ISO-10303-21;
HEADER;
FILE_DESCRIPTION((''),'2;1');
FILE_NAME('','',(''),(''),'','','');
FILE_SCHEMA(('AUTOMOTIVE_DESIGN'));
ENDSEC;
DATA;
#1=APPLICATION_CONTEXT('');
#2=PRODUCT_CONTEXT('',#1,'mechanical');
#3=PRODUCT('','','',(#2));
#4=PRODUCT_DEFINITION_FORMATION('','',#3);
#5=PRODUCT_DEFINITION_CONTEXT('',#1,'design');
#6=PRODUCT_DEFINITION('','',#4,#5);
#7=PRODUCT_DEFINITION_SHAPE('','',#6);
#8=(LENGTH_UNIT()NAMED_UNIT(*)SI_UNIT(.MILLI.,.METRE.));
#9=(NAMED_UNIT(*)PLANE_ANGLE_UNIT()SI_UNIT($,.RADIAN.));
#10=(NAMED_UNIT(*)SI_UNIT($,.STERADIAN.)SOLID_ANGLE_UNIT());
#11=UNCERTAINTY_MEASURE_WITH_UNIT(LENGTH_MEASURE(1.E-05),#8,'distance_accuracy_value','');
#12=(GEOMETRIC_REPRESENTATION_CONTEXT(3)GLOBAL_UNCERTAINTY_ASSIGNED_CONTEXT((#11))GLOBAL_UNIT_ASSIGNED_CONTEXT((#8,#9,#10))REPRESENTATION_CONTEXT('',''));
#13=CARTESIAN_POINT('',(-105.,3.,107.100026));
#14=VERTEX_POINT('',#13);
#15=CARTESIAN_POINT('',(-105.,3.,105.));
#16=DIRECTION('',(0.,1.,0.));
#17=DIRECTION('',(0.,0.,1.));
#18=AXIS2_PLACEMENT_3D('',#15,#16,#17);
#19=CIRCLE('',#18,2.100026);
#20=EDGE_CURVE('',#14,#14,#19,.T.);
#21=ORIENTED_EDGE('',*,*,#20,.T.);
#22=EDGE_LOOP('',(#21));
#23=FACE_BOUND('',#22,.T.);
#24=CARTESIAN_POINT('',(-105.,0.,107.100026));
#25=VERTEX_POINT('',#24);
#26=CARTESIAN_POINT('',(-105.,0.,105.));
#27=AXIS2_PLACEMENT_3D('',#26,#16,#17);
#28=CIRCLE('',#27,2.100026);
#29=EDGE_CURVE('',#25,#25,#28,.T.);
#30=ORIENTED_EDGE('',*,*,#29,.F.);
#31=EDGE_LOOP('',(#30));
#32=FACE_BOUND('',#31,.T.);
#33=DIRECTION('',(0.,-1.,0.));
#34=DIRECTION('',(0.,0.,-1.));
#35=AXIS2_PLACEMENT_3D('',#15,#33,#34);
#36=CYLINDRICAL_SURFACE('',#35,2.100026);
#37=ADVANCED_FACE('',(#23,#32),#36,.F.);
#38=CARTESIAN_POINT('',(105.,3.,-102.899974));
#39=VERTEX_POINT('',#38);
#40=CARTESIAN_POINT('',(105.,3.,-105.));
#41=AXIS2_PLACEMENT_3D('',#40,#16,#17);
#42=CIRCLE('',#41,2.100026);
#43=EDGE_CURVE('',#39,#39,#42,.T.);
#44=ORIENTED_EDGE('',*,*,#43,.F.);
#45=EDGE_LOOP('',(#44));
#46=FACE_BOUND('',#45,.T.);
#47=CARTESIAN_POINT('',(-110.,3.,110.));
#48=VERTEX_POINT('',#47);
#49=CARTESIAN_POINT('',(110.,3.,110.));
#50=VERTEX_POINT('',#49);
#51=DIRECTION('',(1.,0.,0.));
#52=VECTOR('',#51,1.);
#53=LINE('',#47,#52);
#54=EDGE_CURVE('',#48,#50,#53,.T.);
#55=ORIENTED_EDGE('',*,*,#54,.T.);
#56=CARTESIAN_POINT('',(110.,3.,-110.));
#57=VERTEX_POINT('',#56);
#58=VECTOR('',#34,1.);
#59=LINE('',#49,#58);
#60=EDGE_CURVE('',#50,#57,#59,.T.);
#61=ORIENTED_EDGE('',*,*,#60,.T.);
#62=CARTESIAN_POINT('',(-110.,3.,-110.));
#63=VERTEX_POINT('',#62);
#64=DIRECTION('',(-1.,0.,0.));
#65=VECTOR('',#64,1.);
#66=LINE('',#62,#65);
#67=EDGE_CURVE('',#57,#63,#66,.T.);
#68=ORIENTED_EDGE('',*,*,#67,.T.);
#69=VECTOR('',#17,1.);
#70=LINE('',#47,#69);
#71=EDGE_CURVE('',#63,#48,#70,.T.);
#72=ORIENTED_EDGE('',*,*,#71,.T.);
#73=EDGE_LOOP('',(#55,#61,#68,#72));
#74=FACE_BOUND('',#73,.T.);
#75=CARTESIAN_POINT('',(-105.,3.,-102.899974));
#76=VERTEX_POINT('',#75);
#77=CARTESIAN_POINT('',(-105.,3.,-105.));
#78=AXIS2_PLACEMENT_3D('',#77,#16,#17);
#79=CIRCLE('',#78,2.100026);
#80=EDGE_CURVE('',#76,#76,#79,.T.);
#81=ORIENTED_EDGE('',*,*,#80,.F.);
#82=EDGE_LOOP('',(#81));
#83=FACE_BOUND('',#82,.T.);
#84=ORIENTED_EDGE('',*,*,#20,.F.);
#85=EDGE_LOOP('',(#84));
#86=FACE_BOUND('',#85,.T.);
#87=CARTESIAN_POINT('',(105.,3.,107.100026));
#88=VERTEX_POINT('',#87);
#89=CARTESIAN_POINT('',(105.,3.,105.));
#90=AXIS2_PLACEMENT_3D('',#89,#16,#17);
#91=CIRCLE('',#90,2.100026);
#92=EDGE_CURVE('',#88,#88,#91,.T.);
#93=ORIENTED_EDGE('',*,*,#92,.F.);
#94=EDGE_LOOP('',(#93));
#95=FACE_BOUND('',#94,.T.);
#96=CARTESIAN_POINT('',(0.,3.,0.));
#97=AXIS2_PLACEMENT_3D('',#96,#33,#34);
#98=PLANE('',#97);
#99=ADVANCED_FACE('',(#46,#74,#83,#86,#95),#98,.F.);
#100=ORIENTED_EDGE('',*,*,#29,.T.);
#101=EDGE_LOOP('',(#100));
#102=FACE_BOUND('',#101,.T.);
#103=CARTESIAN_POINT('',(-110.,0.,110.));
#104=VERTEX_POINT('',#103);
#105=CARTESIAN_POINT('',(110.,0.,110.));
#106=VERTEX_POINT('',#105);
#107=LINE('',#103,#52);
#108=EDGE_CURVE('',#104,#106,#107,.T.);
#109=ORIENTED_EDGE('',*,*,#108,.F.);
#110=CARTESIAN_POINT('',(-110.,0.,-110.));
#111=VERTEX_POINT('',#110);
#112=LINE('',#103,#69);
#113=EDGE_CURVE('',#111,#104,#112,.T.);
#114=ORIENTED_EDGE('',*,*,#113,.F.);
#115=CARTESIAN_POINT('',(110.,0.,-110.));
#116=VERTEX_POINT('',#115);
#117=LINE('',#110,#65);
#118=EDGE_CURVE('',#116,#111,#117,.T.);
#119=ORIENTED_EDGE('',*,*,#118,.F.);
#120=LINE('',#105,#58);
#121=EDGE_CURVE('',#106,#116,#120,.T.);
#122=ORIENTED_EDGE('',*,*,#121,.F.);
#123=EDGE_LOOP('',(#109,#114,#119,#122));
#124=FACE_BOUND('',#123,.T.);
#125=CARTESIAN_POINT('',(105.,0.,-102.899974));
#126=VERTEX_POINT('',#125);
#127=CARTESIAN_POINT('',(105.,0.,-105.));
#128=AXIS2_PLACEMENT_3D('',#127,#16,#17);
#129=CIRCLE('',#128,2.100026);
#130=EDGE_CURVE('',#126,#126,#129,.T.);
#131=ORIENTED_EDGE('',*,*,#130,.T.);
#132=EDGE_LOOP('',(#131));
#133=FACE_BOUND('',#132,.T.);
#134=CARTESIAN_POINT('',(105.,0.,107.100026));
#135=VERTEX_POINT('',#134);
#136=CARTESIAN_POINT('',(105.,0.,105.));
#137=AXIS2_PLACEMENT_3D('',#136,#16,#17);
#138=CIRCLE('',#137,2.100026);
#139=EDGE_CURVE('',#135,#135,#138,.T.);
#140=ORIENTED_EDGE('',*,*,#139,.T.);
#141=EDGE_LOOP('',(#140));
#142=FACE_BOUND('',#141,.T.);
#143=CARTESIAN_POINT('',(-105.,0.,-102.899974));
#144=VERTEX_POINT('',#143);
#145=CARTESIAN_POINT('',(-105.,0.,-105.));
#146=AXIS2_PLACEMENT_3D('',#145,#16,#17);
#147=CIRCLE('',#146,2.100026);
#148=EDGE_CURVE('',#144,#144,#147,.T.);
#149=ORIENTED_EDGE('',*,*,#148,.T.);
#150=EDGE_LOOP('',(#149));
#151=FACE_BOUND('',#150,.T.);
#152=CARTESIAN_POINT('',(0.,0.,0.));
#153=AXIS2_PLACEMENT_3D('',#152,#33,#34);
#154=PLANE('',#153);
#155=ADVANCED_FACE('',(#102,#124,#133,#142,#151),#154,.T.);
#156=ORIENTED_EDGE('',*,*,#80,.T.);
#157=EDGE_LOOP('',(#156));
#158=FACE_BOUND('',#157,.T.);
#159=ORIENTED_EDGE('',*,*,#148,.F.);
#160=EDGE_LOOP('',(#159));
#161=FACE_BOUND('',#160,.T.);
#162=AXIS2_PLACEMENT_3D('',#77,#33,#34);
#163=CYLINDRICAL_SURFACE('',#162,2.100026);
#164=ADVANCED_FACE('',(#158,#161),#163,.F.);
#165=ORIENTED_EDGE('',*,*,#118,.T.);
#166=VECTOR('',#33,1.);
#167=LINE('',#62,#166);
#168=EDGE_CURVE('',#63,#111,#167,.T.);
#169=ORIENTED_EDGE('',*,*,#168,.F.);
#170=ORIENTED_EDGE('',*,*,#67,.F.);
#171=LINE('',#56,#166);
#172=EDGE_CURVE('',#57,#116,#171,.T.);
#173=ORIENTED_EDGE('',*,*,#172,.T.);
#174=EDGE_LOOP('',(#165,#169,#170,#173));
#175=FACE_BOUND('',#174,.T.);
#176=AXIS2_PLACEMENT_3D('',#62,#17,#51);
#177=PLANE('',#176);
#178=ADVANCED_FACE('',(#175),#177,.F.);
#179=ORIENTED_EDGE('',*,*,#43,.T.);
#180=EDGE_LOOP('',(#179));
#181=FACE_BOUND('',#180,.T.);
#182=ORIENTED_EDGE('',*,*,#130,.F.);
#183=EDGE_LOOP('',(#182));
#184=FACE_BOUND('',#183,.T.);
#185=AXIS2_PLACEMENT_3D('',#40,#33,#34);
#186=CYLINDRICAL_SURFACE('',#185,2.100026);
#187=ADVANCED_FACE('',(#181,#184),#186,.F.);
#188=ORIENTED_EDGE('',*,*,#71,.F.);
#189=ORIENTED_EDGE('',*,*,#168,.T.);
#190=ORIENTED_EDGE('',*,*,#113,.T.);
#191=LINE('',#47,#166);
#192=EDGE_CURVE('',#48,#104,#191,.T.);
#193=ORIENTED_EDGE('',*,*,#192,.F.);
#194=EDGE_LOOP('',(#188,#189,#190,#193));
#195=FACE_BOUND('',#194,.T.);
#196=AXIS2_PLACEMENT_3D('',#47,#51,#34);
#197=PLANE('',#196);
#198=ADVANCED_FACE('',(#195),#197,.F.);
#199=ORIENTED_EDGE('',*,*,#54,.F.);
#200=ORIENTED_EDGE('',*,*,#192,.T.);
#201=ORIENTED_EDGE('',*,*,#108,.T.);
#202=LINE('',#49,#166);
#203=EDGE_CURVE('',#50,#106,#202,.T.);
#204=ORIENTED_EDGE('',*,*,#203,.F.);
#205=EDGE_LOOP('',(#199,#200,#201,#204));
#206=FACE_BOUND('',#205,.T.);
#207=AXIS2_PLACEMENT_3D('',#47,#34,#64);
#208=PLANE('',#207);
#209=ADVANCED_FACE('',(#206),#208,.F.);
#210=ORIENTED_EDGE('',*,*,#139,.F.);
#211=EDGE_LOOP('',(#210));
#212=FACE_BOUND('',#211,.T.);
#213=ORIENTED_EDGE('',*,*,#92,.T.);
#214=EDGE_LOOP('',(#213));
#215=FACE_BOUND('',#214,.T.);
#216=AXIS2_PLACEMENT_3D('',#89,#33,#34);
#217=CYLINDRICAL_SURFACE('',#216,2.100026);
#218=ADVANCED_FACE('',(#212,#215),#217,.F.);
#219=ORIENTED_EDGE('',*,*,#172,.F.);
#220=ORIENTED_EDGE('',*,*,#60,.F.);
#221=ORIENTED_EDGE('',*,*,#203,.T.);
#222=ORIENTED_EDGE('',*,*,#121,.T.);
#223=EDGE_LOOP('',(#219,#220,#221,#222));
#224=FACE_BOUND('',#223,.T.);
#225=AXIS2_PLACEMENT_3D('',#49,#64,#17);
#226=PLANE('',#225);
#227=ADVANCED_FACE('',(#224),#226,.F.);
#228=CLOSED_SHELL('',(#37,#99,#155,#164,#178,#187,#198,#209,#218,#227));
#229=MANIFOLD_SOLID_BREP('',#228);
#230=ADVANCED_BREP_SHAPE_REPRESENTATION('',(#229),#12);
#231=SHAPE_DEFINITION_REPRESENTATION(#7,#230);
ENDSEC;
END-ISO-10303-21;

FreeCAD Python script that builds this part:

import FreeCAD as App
import Part
import Sketcher
from FreeCAD import Vector
Q = App.Units.Quantity


def add_polygon(sketch, points):
    """Adds a closed chain of lines whose ends are joined by coincident constraints."""
    first, n = sketch.GeometryCount, len(points)
    for a, b in zip(points, points[1:] + points[:1]):
        sketch.addGeometry(Part.LineSegment(App.Vector(*a, 0), App.Vector(*b, 0)), False)
    for i in range(n):
        sketch.addConstraint(Sketcher.Constraint("Coincident", first + i, 2, first + (i + 1) % n, 1))

doc = App.newDocument("Part")
params = doc.addObject("Spreadsheet::Sheet", "Params")
for row, (alias, value) in enumerate([
    ("sketch1_width", "220 mm"),
    ("pad1_length", "3 mm"),
], start=1):
    params.set(f"A{row}", alias)
    params.set(f"B{row}", "=" + value)
    params.setAlias(f"B{row}", alias)

body = doc.addObject("PartDesign::Body", "Body")

# Sketch on XZ plane
sketch1 = body.newObject("Sketcher::SketchObject", "Sketch")
sketch1.AttachmentSupport = (doc.getObject("XZ_Plane"), [""])
sketch1.MapMode = "FlatFace"
add_polygon(sketch1, [(-110, -110), (-110, 110), (110, 110), (110, -110)])  # lines 0-3
sketch1.addGeometry(Part.Circle(Vector(-105, 105, 0), Vector(0, 0, 1), 2.1), False)  # 4
sketch1.addGeometry(Part.Circle(Vector(105, 105, 0), Vector(0, 0, 1), 2.1), False)  # 5
sketch1.addGeometry(Part.Circle(Vector(-105, -105, 0), Vector(0, 0, 1), 2.1), False)  # 6
sketch1.addGeometry(Part.Circle(Vector(105, -105, 0), Vector(0, 0, 1), 2.1), False)  # 7
sketch1.addConstraint([
    Sketcher.Constraint("Vertical", 0),
    Sketcher.Constraint("Horizontal", 1),
    Sketcher.Constraint("Vertical", 2),
    Sketcher.Constraint("Horizontal", 3),
    Sketcher.Constraint("Equal", 4, 5),
    Sketcher.Constraint("Equal", 5, 6),
    Sketcher.Constraint("Equal", 6, 7),
    Sketcher.Constraint("Symmetric", 5, 3, 6, 3, -1, 1),
    Sketcher.Constraint("Symmetric", 4, 3, 7, 3, -1, 1),
    Sketcher.Constraint("Symmetric", 0, 2, 2, 2, -1, 1),
    Sketcher.Constraint("Symmetric", 4, 3, 5, 3, -2),
    Sketcher.Constraint("Equal", 3, 0),
    Sketcher.Constraint("DistanceX", 1, 1, 1, 2, Q("220 mm")),
    Sketcher.Constraint("DistanceX", 4, 3, -1, 1, Q("105 mm")),
    Sketcher.Constraint("DistanceY", -1, 1, 4, 3, Q("105 mm")),
    Sketcher.Constraint("Diameter", 4, Q("4.200051 mm")),
])
sketch1.setExpression("Constraints[16]", "Params.sketch1_width")
pad1 = body.newObject("PartDesign::Pad", "Pad")
pad1.Profile = sketch1
pad1.setExpression("Length", "Params.pad1_length")
pad1.Reversed = True

doc.recompute()
